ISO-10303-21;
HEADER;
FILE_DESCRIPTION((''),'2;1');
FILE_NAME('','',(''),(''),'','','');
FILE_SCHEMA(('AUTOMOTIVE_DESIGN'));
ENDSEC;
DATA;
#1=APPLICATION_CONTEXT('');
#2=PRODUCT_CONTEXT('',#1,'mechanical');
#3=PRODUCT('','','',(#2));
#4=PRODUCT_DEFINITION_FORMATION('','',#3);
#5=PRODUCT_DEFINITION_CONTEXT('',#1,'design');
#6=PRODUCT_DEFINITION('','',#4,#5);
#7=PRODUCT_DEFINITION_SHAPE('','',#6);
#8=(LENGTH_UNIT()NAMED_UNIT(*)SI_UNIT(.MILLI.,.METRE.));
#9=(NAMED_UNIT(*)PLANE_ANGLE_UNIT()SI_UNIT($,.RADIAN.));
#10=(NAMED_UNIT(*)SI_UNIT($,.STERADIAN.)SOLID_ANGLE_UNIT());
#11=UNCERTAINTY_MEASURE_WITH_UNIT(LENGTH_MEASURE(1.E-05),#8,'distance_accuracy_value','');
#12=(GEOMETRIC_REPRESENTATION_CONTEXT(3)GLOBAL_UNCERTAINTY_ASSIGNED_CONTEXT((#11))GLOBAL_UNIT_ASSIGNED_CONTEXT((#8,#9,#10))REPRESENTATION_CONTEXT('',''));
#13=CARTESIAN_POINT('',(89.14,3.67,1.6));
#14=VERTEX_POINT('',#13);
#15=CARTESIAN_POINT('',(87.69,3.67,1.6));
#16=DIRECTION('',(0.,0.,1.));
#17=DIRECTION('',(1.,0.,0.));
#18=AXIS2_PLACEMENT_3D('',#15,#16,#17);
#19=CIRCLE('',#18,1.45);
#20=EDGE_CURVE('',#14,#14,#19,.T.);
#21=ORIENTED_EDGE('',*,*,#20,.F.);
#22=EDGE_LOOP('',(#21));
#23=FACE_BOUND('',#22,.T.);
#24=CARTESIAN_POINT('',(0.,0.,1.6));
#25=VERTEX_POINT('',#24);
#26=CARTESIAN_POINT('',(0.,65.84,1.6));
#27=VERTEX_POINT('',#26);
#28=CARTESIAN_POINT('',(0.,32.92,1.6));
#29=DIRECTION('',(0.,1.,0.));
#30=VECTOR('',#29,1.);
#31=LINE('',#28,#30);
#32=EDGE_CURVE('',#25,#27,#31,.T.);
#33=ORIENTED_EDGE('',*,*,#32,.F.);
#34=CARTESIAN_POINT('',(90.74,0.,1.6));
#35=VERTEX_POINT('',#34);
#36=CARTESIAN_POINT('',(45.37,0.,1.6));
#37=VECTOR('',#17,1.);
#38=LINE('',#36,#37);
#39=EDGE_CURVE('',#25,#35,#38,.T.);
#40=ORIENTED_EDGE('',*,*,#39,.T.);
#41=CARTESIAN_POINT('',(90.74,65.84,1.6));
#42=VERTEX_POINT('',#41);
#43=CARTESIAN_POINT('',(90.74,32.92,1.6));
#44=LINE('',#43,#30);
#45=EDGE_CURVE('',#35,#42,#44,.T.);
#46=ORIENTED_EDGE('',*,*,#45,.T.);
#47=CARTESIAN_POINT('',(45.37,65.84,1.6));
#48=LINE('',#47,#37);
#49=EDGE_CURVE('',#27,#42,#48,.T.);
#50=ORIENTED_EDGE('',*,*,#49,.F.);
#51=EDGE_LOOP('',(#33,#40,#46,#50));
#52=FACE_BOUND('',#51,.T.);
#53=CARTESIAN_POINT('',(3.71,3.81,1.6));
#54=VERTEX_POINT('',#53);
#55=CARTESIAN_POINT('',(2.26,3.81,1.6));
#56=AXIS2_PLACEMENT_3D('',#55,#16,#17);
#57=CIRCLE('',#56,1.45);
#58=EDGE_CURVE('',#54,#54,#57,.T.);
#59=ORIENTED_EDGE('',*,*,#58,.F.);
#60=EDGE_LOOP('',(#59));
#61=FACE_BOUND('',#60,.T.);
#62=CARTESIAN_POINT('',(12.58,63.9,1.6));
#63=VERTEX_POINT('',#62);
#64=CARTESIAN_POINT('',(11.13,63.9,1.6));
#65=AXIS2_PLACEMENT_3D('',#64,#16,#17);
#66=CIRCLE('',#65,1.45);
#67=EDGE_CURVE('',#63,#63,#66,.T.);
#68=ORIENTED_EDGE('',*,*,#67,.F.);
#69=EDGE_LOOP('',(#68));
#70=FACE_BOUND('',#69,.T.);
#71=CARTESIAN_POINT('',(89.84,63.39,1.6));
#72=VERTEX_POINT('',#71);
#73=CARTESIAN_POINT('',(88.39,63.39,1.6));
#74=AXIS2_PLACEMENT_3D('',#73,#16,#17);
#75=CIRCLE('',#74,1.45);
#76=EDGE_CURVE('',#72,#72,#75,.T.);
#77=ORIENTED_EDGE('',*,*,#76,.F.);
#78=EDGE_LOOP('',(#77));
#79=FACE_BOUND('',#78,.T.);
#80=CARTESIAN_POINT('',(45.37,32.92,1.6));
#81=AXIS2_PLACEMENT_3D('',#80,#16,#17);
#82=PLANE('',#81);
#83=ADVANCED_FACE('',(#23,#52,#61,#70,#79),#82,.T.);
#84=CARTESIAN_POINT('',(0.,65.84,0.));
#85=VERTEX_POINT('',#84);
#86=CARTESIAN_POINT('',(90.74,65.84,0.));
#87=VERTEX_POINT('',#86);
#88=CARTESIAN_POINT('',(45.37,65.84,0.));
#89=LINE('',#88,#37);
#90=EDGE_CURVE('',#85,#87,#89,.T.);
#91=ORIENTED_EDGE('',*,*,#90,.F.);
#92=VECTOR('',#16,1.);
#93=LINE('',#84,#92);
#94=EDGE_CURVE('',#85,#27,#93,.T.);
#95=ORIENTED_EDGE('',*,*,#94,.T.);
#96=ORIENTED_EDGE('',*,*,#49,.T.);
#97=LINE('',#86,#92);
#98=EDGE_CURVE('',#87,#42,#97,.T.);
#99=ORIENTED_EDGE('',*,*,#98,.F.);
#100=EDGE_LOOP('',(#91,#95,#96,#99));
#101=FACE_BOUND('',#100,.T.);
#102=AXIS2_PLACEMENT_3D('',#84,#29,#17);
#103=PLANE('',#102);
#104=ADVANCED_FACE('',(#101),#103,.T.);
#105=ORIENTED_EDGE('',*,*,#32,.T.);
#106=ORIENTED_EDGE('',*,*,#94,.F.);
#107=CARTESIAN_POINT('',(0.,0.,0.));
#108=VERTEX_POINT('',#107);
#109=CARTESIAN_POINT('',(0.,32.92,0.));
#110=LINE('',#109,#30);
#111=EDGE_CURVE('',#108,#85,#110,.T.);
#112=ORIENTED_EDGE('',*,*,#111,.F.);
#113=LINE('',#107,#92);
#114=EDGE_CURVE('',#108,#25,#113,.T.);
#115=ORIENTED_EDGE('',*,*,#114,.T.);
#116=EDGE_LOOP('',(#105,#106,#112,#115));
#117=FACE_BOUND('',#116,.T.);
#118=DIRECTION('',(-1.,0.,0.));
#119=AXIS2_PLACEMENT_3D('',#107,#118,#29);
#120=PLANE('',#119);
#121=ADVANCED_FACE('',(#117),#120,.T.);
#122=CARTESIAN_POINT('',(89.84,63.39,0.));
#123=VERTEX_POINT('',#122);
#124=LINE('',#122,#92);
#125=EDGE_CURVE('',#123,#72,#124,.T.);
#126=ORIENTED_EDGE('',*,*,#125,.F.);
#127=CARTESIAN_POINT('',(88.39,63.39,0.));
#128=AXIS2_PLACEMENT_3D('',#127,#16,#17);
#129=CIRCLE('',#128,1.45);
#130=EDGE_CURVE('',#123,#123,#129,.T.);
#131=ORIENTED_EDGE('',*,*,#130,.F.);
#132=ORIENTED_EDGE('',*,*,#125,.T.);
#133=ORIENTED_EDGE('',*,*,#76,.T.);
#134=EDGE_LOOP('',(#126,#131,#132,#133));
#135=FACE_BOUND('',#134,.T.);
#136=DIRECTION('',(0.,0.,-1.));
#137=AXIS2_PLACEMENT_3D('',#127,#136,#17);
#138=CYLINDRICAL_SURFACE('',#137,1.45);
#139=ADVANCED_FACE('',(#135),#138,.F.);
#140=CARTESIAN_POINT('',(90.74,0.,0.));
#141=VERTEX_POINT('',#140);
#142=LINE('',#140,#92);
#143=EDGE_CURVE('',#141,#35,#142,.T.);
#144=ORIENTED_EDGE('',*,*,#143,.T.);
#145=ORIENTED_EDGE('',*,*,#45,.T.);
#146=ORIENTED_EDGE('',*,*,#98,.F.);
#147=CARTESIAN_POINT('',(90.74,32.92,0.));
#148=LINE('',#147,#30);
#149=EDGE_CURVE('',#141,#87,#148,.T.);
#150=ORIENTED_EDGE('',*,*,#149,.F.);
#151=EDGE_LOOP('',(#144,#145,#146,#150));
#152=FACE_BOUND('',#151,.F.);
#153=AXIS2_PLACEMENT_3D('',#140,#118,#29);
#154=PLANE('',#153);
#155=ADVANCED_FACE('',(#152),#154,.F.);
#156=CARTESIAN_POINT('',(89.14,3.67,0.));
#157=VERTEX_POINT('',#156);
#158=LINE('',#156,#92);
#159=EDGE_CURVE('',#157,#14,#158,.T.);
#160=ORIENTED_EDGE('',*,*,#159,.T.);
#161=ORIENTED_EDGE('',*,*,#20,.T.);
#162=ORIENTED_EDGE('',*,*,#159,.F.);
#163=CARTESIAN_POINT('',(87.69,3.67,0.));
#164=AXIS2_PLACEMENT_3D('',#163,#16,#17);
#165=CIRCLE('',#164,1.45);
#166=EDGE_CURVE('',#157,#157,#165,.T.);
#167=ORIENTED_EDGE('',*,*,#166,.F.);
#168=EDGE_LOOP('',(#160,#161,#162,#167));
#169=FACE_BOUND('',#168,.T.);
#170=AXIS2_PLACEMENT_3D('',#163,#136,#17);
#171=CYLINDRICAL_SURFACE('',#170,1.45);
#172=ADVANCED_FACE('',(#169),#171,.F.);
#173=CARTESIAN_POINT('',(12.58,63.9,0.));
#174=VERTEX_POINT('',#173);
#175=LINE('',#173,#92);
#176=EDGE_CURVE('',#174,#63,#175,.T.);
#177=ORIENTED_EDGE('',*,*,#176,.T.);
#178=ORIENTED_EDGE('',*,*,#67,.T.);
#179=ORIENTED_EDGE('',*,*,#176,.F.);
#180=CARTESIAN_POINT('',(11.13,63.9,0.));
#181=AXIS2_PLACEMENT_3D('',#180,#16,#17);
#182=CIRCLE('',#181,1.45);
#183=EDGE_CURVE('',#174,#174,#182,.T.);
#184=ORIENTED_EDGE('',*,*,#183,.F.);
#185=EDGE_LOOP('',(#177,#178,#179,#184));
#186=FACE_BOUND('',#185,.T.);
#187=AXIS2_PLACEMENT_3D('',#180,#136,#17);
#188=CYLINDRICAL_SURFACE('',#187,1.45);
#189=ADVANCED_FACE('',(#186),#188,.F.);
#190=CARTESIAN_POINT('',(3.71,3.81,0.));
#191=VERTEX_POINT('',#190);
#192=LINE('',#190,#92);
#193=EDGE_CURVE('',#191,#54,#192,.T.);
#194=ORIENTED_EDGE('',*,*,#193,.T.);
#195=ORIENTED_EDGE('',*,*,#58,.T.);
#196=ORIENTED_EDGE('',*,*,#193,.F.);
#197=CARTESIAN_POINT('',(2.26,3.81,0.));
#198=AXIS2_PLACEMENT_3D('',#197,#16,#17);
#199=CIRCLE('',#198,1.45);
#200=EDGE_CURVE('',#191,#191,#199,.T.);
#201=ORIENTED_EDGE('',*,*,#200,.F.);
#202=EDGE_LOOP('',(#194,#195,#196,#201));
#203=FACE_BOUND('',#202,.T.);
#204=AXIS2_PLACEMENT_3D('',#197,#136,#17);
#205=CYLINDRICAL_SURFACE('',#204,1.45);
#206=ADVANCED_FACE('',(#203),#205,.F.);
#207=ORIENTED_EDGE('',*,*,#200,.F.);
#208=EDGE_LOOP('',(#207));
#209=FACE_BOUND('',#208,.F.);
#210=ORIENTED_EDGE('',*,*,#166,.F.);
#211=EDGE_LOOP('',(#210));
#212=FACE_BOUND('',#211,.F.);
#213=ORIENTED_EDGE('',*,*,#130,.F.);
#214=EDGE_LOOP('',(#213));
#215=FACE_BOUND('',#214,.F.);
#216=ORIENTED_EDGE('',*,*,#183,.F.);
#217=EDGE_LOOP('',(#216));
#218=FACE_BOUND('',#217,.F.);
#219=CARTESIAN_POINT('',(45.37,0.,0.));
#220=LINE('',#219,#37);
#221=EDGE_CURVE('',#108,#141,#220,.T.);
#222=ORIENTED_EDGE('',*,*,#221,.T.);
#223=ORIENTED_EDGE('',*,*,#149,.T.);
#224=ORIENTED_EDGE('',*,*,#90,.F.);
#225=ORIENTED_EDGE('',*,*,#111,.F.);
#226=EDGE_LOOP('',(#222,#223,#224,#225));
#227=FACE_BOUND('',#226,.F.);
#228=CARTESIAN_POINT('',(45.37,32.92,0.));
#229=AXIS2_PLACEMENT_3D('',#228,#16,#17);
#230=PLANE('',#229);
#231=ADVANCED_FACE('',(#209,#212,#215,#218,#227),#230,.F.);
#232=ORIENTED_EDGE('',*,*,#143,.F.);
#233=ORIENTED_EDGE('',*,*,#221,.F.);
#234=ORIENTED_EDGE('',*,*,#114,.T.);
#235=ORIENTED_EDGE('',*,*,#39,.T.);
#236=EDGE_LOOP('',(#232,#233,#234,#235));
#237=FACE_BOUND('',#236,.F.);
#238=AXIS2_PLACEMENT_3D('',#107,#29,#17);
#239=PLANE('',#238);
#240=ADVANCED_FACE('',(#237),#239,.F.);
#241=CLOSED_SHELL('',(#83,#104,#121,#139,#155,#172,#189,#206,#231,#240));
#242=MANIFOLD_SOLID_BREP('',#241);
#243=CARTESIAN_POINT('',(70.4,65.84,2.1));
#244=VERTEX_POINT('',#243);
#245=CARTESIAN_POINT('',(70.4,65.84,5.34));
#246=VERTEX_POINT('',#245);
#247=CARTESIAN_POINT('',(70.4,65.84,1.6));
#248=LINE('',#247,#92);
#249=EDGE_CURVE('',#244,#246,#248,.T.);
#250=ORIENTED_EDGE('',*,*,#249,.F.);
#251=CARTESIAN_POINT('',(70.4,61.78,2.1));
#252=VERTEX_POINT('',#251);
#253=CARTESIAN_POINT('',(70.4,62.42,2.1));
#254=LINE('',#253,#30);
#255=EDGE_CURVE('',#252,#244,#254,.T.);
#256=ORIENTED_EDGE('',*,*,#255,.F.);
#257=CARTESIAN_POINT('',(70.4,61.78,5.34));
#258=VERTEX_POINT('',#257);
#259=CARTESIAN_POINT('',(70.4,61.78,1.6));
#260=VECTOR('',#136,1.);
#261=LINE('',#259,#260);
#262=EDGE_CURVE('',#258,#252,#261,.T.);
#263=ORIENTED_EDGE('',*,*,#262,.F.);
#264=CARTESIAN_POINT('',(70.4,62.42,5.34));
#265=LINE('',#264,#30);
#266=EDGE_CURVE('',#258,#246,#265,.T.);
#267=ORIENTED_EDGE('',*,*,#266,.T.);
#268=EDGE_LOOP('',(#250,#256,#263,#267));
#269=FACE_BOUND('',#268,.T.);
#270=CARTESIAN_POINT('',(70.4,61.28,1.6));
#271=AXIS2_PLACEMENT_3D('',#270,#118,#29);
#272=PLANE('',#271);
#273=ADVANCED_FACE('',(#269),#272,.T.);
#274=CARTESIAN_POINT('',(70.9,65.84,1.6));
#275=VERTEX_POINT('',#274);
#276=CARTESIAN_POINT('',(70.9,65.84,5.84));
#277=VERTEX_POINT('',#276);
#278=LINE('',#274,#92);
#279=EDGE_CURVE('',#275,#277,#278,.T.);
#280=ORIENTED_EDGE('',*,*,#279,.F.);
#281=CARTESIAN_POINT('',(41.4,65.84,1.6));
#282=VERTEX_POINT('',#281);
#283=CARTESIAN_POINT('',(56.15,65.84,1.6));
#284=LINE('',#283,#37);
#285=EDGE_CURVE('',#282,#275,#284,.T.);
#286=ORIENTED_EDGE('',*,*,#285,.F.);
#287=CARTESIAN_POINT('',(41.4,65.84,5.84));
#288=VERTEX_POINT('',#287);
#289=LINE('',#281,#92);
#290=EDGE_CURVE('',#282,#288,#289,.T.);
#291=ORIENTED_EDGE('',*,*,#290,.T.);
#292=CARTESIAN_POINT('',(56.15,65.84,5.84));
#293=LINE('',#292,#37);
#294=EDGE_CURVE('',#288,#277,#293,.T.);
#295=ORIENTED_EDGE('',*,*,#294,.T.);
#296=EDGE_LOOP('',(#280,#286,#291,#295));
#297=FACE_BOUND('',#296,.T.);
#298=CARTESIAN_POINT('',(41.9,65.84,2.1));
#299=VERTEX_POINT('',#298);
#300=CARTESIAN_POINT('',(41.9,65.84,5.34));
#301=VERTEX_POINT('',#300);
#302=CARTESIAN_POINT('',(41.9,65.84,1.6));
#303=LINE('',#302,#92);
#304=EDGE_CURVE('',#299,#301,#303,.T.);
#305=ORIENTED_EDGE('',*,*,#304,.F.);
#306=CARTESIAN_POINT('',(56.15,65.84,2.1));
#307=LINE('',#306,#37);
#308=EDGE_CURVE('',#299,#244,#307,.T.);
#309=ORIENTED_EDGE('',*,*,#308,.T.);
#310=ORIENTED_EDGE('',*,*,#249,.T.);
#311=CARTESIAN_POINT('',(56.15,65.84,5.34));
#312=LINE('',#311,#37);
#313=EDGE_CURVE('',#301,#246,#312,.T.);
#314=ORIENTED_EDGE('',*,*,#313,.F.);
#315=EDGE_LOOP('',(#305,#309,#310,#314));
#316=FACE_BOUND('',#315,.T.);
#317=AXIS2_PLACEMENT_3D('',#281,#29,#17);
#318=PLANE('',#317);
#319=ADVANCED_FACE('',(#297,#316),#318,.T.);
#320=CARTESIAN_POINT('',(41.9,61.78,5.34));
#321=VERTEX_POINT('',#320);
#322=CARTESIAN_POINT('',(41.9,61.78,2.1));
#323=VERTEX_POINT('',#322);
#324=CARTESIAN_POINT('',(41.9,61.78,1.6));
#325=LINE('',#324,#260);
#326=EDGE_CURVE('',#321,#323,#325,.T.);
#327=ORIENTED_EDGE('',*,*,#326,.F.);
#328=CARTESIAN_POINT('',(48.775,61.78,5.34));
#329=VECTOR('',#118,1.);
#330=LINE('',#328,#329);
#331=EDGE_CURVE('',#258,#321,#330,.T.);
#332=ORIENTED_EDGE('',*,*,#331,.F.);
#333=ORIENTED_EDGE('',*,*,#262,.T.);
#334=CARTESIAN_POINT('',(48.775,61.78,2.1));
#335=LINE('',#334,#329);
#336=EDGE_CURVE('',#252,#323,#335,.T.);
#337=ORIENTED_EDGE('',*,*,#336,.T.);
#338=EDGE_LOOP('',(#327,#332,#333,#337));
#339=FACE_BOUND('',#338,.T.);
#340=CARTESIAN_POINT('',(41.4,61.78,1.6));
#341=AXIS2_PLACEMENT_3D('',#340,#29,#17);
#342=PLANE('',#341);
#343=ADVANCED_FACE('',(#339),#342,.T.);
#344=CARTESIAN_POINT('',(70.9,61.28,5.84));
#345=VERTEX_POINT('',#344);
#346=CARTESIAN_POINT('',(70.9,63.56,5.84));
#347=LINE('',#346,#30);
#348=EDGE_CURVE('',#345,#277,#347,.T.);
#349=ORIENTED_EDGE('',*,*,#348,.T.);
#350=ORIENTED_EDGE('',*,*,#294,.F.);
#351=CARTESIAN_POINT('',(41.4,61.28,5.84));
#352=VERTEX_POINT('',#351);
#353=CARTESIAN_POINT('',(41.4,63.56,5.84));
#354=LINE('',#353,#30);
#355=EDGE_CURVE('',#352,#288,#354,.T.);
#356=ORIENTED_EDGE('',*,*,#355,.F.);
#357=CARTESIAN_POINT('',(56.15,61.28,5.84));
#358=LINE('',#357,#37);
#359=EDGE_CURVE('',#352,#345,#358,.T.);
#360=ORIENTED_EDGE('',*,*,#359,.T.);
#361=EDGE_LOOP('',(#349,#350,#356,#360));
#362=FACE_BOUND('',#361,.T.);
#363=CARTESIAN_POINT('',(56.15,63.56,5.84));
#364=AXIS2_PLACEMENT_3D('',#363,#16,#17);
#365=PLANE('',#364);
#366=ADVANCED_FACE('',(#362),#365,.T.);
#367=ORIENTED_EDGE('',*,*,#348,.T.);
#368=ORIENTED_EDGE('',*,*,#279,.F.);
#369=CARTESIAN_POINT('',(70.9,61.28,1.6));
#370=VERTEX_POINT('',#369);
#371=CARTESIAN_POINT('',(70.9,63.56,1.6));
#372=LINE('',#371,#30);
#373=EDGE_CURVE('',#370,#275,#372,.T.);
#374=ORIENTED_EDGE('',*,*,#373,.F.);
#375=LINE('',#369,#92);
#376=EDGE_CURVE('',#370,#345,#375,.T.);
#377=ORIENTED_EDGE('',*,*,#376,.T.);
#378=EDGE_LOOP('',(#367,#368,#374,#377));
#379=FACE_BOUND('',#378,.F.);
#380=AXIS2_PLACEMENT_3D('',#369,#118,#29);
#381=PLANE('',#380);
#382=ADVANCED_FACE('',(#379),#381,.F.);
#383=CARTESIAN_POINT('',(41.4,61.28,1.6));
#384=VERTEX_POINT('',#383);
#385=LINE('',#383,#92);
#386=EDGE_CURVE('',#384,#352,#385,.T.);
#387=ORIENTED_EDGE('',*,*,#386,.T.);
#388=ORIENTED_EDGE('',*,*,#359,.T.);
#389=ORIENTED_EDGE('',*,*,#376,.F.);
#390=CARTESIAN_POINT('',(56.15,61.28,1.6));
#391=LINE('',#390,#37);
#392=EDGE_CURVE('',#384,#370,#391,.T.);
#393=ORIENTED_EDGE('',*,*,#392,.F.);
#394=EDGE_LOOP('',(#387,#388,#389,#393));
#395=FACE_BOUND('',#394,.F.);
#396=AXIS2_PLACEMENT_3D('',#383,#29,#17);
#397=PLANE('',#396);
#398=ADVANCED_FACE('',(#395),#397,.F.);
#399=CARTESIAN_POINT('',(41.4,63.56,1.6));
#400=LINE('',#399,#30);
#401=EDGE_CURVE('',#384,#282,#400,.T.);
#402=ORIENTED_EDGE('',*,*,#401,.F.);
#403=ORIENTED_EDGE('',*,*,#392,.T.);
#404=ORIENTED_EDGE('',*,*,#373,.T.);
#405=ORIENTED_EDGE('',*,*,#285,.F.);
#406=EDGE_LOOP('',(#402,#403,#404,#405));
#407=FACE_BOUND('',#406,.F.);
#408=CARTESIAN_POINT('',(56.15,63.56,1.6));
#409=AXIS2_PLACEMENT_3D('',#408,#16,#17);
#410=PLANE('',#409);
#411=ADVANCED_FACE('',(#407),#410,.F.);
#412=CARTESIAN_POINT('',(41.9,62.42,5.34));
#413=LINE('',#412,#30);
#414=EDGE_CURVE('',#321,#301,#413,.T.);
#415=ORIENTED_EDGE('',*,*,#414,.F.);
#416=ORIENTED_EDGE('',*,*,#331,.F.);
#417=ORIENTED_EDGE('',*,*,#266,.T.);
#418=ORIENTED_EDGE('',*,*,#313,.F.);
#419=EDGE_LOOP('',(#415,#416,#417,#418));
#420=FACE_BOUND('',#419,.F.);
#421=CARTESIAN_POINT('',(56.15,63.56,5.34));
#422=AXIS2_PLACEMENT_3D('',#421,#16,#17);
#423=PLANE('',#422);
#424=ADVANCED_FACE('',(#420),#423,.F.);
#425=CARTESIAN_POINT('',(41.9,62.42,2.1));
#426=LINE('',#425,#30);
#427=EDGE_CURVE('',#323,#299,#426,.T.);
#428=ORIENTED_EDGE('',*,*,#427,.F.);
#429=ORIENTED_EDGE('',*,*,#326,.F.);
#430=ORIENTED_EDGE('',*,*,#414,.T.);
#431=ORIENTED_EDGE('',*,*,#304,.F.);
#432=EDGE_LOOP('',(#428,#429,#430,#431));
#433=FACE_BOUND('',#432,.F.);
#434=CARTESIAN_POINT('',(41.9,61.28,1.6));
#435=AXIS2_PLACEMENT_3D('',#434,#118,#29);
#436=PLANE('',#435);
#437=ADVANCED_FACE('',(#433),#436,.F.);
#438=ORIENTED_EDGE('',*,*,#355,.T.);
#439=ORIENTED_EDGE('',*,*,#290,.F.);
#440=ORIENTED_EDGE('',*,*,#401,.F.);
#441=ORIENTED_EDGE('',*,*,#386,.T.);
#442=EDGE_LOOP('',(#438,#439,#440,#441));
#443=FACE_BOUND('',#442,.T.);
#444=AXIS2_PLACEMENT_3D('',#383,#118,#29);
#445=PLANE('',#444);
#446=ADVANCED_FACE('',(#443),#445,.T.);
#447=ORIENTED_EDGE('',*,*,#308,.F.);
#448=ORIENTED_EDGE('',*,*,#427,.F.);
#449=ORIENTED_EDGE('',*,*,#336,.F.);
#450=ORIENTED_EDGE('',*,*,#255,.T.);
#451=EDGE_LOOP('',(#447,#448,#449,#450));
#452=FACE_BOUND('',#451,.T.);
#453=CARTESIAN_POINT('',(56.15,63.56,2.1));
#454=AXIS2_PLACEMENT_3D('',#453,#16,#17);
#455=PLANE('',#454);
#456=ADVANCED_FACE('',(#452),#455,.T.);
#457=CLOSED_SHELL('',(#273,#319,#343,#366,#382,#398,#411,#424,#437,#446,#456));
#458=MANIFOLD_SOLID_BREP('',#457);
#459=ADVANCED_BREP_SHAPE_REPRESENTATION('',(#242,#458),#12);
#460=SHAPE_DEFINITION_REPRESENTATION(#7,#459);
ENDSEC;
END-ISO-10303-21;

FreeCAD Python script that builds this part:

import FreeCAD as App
import Part
import Sketcher
from FreeCAD import Vector


def faces_at(feature, points):
    """Names of the faces that lie closest to the given points."""
    faces = feature.Shape.Faces
    near = lambda p: min(range(len(faces)), key=lambda i: faces[i].distToShape(Part.Vertex(*p))[0])
    return sorted({f"Face{near(p) + 1}" for p in points})

doc = App.newDocument("Part")
body = doc.addObject("PartDesign::Body", "Body")

sketch1 = doc.addObject("Sketcher::SketchObject", "Sketch")
body.addObject(sketch1)
sketch1.AttachmentSupport = (doc.XY_Plane, [""])
sketch1.MapMode = "FlatFace"
sketch1.addGeometry(Part.LineSegment(Vector(0, 65.8, 0), Vector(0, 0, 0)), False)
sketch1.addGeometry(Part.LineSegment(Vector(0, 0, 0), Vector(90.7, 0, 0)), False)
sketch1.addGeometry(Part.LineSegment(Vector(90.7, 0, 0), Vector(90.7, 65.8, 0)), False)
sketch1.addGeometry(Part.LineSegment(Vector(90.7, 65.8, 0), Vector(0, 65.8, 0)), False)
sketch1.addGeometry(Part.Circle(Vector(2.3, 3.8, 0), Vector(0, 0, 1), 1.4), False)
sketch1.addGeometry(Part.Circle(Vector(87.7, 3.7, 0), Vector(0, 0, 1), 1.4), False)
sketch1.addGeometry(Part.Circle(Vector(11.1, 63.9, 0), Vector(0, 0, 1), 1.4), False)
sketch1.addGeometry(Part.Circle(Vector(88.4, 63.4, 0), Vector(0, 0, 1), 1.4), False)
sketch1.addConstraint(Sketcher.Constraint("Coincident", 0, 2, 1, 1))
sketch1.addConstraint(Sketcher.Constraint("Coincident", 1, 2, 2, 1))
sketch1.addConstraint(Sketcher.Constraint("Coincident", 2, 2, 3, 1))
sketch1.addConstraint(Sketcher.Constraint("Coincident", 3, 2, 0, 1))
sketch1.addConstraint(Sketcher.Constraint("Vertical", 0))
sketch1.addConstraint(Sketcher.Constraint("Horizontal", 1))
sketch1.addConstraint(Sketcher.Constraint("Vertical", 2))
sketch1.addConstraint(Sketcher.Constraint("Horizontal", 3))
sketch1.addConstraint(Sketcher.Constraint("Coincident", 0, 2, -1, 1))
sketch1.addConstraint(Sketcher.Constraint("Equal", 4, 5))
sketch1.addConstraint(Sketcher.Constraint("Equal", 5, 6))
sketch1.addConstraint(Sketcher.Constraint("Equal", 6, 7))
sketch1.addConstraint(Sketcher.Constraint("Diameter", 4, 2.9))
sketch1.addConstraint(Sketcher.Constraint("DistanceX", 1, 1, 1, 2, 90.74))
sketch1.addConstraint(Sketcher.Constraint("DistanceY", 0, 2, 0, 1, 65.84))
sketch1.addConstraint(Sketcher.Constraint("DistanceY", -1, 1, 6, 3, 63.9))
sketch1.addConstraint(Sketcher.Constraint("DistanceX", 5, 3, 7, 3, 0.7))
sketch1.addConstraint(Sketcher.Constraint("DistanceX", -1, 1, 4, 3, 2.26))
sketch1.addConstraint(Sketcher.Constraint("DistanceY", -1, 1, 4, 3, 3.81))
sketch1.addConstraint(Sketcher.Constraint("DistanceX", -1, 1, 5, 3, 87.69))
sketch1.addConstraint(Sketcher.Constraint("DistanceY", -1, 1, 5, 3, 3.67))
sketch1.addConstraint(Sketcher.Constraint("DistanceX", -1, 1, 6, 3, 11.13))
sketch1.addConstraint(Sketcher.Constraint("DistanceY", -1, 1, 7, 3, 63.39))
pad1 = doc.addObject("PartDesign::Pad", "Pad")
body.addObject(pad1)
pad1.Profile = sketch1
pad1.Length = 1.6
body2 = doc.addObject("PartDesign::Body", "Body001")

sketch2 = doc.addObject("Sketcher::SketchObject", "Sketch001")
body2.addObject(sketch2)
sketch2.AttachmentSupport = (doc.getObject("XY_Plane001"), [""])
sketch2.MapMode = "FlatFace"
sketch2.AttachmentOffset = App.Placement(Vector(0, 0, 1.6), App.Rotation())
sketch2.addGeometry(Part.LineSegment(Vector(41.4, 65.8, 0), Vector(41.4, 61.3, 0)), False)
sketch2.addGeometry(Part.LineSegment(Vector(41.4, 61.3, 0), Vector(70.9, 61.3, 0)), False)
sketch2.addGeometry(Part.LineSegment(Vector(70.9, 61.3, 0), Vector(70.9, 65.8, 0)), False)
sketch2.addGeometry(Part.LineSegment(Vector(70.9, 65.8, 0), Vector(41.4, 65.8, 0)), False)
sketch2.addConstraint(Sketcher.Constraint("Coincident", 0, 2, 1, 1))
sketch2.addConstraint(Sketcher.Constraint("Coincident", 1, 2, 2, 1))
sketch2.addConstraint(Sketcher.Constraint("Coincident", 2, 2, 3, 1))
sketch2.addConstraint(Sketcher.Constraint("Coincident", 3, 2, 0, 1))
sketch2.addConstraint(Sketcher.Constraint("Vertical", 0))
sketch2.addConstraint(Sketcher.Constraint("Horizontal", 1))
sketch2.addConstraint(Sketcher.Constraint("Vertical", 2))
sketch2.addConstraint(Sketcher.Constraint("Horizontal", 3))
sketch2.addConstraint(Sketcher.Constraint("DistanceX", 1, 1, 1, 2, 29.5))
sketch2.addConstraint(Sketcher.Constraint("DistanceY", 0, 2, 0, 1, 4.56))
sketch2.addConstraint(Sketcher.Constraint("DistanceX", -1, 1, 0, 2, 41.4))
sketch2.addConstraint(Sketcher.Constraint("DistanceY", -1, 1, 0, 2, 61.28))
pad2 = doc.addObject("PartDesign::Pad", "Pad001")
body2.addObject(pad2)
pad2.Profile = sketch2
pad2.Length = 4.24
doc.recompute()

thickness = doc.addObject("PartDesign::Thickness", "Thickness")
body2.addObject(thickness)
thickness.Base = (pad2, faces_at(pad2, [(56.15, 65.84, 3.72)]))
thickness.Value = 0.5
thickness.Reversed = True
thickness.Join = "Arc"

doc.recompute()
